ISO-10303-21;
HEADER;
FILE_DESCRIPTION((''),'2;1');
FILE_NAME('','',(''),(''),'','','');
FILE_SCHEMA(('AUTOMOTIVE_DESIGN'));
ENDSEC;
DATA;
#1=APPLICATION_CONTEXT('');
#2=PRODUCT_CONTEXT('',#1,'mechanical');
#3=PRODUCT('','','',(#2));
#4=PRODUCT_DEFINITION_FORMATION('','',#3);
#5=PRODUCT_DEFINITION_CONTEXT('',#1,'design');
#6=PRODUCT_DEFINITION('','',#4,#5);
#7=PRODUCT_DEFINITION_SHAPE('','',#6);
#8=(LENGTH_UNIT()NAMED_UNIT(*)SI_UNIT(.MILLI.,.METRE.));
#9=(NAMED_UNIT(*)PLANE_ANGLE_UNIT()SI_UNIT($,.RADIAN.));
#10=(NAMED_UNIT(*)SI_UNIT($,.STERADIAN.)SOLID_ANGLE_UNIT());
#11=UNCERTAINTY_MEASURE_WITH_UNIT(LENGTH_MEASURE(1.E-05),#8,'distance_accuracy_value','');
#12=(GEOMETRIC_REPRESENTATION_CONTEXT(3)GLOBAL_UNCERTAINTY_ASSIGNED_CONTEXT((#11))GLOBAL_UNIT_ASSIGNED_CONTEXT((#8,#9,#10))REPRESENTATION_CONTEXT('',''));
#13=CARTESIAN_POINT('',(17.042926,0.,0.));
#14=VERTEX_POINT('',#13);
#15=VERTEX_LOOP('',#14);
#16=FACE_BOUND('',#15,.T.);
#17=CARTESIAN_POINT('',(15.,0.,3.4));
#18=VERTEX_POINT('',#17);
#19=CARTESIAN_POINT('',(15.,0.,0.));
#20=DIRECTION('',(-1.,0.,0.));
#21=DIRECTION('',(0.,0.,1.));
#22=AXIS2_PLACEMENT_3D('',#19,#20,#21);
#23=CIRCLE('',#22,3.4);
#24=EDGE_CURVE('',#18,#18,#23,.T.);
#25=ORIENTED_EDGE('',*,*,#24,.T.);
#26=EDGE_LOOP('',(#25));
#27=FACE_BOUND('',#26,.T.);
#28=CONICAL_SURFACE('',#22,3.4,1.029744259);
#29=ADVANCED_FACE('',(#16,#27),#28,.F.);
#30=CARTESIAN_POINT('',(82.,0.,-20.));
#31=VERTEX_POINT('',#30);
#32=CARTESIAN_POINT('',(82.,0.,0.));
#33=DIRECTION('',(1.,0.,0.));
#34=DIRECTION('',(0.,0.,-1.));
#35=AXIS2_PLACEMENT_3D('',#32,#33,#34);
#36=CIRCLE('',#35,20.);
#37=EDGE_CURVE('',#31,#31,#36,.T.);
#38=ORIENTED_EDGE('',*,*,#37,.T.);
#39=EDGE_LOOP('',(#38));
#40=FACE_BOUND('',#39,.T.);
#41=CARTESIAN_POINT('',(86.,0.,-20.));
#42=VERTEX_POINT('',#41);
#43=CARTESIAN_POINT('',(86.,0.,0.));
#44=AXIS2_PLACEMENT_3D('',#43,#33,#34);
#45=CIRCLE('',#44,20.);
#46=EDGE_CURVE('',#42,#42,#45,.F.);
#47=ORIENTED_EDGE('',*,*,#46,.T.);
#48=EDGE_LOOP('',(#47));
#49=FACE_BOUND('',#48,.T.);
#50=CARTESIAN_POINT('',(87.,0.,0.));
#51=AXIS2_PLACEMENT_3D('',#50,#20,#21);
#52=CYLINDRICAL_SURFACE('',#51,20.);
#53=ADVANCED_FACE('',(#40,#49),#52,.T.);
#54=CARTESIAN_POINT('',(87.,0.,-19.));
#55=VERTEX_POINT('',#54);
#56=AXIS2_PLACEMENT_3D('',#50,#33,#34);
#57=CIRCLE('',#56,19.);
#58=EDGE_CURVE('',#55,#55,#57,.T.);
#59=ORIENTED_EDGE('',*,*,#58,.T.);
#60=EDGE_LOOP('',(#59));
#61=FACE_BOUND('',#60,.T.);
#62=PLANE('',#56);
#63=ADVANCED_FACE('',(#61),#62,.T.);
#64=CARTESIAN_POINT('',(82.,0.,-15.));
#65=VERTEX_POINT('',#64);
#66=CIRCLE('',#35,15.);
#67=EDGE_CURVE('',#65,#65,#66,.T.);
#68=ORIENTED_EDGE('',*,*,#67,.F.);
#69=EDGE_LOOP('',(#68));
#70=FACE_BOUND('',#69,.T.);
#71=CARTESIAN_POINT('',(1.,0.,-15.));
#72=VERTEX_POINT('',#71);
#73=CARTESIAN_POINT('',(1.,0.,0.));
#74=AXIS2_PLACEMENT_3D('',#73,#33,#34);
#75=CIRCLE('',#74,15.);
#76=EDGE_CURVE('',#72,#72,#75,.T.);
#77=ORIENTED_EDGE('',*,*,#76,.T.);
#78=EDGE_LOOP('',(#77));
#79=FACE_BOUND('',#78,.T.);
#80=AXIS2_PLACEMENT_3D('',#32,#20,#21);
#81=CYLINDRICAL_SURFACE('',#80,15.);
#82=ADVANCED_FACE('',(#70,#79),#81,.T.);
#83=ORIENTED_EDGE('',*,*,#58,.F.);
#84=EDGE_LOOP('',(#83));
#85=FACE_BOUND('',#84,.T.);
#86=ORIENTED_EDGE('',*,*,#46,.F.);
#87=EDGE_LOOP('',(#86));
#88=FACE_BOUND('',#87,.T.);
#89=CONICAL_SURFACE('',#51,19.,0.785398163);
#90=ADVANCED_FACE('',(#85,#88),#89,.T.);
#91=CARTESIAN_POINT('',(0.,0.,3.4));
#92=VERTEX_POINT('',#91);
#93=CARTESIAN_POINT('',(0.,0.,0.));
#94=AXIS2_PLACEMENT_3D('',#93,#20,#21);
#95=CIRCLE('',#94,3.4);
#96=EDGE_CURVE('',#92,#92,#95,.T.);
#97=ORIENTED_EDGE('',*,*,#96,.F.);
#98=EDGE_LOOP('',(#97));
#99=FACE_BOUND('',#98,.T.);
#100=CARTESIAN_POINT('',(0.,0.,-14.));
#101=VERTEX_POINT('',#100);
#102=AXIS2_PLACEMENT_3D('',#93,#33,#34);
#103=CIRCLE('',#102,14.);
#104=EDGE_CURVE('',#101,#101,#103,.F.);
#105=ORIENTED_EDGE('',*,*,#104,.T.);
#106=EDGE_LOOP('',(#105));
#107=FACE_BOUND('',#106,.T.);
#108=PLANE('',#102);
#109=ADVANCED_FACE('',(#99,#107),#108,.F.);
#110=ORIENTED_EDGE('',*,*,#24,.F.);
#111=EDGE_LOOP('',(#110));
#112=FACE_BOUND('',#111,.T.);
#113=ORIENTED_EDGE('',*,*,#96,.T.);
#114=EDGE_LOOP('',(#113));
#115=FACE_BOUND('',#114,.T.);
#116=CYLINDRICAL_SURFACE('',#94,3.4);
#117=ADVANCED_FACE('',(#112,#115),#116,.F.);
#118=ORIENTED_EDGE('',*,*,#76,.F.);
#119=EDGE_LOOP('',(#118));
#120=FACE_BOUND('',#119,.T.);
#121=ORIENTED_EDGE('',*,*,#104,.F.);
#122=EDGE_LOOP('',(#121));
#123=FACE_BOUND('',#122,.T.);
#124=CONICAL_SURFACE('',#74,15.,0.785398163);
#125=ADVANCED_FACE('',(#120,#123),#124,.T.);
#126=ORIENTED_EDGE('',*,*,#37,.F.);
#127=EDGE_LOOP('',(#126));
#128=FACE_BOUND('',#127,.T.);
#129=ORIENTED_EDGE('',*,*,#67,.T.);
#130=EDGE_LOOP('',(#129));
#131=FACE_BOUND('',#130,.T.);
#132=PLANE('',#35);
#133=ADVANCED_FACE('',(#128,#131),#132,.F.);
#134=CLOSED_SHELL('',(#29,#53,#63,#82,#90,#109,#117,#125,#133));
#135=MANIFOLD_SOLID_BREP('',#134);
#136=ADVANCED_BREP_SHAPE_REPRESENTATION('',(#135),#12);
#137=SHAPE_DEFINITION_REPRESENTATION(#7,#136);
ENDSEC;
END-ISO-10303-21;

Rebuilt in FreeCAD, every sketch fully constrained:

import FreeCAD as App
import Part
import Sketcher


def edges_at(feature, points):
    """Names of the edges that pass closest to the given points."""
    edges = feature.Shape.Edges
    near = lambda p: min(range(len(edges)), key=lambda i: edges[i].distToShape(Part.Vertex(*p))[0])
    return sorted({f"Edge{near(p) + 1}" for p in points})

doc = App.newDocument("Part")
body = doc.addObject("PartDesign::Body", "Body")

sketch1 = body.newObject("Sketcher::SketchObject", "Sketch")
sketch1.AttachmentSupport = (doc.getObject("YZ_Plane"), [""])
sketch1.MapMode = "FlatFace"
sketch1.addGeometry(Part.Circle(App.Vector(0, 0, 0), App.Vector(0, 0, 1), 15), False)
sketch1.addConstraint(Sketcher.Constraint("Coincident", 0, 3, -1, 1))
sketch1.addConstraint(Sketcher.Constraint("Diameter", 0, 30.0))
pad1 = body.newObject("PartDesign::Pad", "Pad")
pad1.Profile = sketch1
pad1.Length = 82

sketch2 = body.newObject("Sketcher::SketchObject", "Sketch001")
sketch2.AttachmentSupport = (doc.getObject("YZ_Plane"), [""])
sketch2.MapMode = "FlatFace"
sketch2.AttachmentOffset = App.Placement(App.Vector(0, 0, 82), App.Rotation())
sketch2.addGeometry(Part.Circle(App.Vector(0, 0, 0), App.Vector(0, 0, 1), 20), False)
sketch2.addConstraint(Sketcher.Constraint("Coincident", 0, 3, -1, 1))
sketch2.addConstraint(Sketcher.Constraint("Diameter", 0, 40.0))
pad2 = body.newObject("PartDesign::Pad", "Pad001")
pad2.Profile = sketch2
pad2.Length = 5
doc.recompute()

chamfer = body.newObject("PartDesign::Chamfer", "Chamfer")
chamfer.Base = (pad2, edges_at(pad2, [(0, 0, 15), (87, 0, 20)]))
chamfer.Size = 1

sketch3 = body.newObject("Sketcher::SketchObject", "Sketch002")
sketch3.AttachmentSupport = (doc.getObject("YZ_Plane"), [""])
sketch3.MapMode = "FlatFace"
sketch3.addGeometry(Part.Circle(App.Vector(0, 0, 0), App.Vector(0, 0, 1), 3.4), False)
sketch3.addConstraint(Sketcher.Constraint("Coincident", 0, 3, -1, 1))
sketch3.addConstraint(Sketcher.Constraint("Diameter", 0, 6.8))
doc.recompute()
hole = body.newObject("PartDesign::Hole", "Hole")
hole.Profile = sketch3
hole.ThreadType = "None"
hole.Diameter = 6.8
hole.DepthType = "Dimension"
hole.Depth = 15
hole.DrillPoint = "Angled"
hole.DrillPointAngle = 118
hole.Reversed = True

doc.recompute()
